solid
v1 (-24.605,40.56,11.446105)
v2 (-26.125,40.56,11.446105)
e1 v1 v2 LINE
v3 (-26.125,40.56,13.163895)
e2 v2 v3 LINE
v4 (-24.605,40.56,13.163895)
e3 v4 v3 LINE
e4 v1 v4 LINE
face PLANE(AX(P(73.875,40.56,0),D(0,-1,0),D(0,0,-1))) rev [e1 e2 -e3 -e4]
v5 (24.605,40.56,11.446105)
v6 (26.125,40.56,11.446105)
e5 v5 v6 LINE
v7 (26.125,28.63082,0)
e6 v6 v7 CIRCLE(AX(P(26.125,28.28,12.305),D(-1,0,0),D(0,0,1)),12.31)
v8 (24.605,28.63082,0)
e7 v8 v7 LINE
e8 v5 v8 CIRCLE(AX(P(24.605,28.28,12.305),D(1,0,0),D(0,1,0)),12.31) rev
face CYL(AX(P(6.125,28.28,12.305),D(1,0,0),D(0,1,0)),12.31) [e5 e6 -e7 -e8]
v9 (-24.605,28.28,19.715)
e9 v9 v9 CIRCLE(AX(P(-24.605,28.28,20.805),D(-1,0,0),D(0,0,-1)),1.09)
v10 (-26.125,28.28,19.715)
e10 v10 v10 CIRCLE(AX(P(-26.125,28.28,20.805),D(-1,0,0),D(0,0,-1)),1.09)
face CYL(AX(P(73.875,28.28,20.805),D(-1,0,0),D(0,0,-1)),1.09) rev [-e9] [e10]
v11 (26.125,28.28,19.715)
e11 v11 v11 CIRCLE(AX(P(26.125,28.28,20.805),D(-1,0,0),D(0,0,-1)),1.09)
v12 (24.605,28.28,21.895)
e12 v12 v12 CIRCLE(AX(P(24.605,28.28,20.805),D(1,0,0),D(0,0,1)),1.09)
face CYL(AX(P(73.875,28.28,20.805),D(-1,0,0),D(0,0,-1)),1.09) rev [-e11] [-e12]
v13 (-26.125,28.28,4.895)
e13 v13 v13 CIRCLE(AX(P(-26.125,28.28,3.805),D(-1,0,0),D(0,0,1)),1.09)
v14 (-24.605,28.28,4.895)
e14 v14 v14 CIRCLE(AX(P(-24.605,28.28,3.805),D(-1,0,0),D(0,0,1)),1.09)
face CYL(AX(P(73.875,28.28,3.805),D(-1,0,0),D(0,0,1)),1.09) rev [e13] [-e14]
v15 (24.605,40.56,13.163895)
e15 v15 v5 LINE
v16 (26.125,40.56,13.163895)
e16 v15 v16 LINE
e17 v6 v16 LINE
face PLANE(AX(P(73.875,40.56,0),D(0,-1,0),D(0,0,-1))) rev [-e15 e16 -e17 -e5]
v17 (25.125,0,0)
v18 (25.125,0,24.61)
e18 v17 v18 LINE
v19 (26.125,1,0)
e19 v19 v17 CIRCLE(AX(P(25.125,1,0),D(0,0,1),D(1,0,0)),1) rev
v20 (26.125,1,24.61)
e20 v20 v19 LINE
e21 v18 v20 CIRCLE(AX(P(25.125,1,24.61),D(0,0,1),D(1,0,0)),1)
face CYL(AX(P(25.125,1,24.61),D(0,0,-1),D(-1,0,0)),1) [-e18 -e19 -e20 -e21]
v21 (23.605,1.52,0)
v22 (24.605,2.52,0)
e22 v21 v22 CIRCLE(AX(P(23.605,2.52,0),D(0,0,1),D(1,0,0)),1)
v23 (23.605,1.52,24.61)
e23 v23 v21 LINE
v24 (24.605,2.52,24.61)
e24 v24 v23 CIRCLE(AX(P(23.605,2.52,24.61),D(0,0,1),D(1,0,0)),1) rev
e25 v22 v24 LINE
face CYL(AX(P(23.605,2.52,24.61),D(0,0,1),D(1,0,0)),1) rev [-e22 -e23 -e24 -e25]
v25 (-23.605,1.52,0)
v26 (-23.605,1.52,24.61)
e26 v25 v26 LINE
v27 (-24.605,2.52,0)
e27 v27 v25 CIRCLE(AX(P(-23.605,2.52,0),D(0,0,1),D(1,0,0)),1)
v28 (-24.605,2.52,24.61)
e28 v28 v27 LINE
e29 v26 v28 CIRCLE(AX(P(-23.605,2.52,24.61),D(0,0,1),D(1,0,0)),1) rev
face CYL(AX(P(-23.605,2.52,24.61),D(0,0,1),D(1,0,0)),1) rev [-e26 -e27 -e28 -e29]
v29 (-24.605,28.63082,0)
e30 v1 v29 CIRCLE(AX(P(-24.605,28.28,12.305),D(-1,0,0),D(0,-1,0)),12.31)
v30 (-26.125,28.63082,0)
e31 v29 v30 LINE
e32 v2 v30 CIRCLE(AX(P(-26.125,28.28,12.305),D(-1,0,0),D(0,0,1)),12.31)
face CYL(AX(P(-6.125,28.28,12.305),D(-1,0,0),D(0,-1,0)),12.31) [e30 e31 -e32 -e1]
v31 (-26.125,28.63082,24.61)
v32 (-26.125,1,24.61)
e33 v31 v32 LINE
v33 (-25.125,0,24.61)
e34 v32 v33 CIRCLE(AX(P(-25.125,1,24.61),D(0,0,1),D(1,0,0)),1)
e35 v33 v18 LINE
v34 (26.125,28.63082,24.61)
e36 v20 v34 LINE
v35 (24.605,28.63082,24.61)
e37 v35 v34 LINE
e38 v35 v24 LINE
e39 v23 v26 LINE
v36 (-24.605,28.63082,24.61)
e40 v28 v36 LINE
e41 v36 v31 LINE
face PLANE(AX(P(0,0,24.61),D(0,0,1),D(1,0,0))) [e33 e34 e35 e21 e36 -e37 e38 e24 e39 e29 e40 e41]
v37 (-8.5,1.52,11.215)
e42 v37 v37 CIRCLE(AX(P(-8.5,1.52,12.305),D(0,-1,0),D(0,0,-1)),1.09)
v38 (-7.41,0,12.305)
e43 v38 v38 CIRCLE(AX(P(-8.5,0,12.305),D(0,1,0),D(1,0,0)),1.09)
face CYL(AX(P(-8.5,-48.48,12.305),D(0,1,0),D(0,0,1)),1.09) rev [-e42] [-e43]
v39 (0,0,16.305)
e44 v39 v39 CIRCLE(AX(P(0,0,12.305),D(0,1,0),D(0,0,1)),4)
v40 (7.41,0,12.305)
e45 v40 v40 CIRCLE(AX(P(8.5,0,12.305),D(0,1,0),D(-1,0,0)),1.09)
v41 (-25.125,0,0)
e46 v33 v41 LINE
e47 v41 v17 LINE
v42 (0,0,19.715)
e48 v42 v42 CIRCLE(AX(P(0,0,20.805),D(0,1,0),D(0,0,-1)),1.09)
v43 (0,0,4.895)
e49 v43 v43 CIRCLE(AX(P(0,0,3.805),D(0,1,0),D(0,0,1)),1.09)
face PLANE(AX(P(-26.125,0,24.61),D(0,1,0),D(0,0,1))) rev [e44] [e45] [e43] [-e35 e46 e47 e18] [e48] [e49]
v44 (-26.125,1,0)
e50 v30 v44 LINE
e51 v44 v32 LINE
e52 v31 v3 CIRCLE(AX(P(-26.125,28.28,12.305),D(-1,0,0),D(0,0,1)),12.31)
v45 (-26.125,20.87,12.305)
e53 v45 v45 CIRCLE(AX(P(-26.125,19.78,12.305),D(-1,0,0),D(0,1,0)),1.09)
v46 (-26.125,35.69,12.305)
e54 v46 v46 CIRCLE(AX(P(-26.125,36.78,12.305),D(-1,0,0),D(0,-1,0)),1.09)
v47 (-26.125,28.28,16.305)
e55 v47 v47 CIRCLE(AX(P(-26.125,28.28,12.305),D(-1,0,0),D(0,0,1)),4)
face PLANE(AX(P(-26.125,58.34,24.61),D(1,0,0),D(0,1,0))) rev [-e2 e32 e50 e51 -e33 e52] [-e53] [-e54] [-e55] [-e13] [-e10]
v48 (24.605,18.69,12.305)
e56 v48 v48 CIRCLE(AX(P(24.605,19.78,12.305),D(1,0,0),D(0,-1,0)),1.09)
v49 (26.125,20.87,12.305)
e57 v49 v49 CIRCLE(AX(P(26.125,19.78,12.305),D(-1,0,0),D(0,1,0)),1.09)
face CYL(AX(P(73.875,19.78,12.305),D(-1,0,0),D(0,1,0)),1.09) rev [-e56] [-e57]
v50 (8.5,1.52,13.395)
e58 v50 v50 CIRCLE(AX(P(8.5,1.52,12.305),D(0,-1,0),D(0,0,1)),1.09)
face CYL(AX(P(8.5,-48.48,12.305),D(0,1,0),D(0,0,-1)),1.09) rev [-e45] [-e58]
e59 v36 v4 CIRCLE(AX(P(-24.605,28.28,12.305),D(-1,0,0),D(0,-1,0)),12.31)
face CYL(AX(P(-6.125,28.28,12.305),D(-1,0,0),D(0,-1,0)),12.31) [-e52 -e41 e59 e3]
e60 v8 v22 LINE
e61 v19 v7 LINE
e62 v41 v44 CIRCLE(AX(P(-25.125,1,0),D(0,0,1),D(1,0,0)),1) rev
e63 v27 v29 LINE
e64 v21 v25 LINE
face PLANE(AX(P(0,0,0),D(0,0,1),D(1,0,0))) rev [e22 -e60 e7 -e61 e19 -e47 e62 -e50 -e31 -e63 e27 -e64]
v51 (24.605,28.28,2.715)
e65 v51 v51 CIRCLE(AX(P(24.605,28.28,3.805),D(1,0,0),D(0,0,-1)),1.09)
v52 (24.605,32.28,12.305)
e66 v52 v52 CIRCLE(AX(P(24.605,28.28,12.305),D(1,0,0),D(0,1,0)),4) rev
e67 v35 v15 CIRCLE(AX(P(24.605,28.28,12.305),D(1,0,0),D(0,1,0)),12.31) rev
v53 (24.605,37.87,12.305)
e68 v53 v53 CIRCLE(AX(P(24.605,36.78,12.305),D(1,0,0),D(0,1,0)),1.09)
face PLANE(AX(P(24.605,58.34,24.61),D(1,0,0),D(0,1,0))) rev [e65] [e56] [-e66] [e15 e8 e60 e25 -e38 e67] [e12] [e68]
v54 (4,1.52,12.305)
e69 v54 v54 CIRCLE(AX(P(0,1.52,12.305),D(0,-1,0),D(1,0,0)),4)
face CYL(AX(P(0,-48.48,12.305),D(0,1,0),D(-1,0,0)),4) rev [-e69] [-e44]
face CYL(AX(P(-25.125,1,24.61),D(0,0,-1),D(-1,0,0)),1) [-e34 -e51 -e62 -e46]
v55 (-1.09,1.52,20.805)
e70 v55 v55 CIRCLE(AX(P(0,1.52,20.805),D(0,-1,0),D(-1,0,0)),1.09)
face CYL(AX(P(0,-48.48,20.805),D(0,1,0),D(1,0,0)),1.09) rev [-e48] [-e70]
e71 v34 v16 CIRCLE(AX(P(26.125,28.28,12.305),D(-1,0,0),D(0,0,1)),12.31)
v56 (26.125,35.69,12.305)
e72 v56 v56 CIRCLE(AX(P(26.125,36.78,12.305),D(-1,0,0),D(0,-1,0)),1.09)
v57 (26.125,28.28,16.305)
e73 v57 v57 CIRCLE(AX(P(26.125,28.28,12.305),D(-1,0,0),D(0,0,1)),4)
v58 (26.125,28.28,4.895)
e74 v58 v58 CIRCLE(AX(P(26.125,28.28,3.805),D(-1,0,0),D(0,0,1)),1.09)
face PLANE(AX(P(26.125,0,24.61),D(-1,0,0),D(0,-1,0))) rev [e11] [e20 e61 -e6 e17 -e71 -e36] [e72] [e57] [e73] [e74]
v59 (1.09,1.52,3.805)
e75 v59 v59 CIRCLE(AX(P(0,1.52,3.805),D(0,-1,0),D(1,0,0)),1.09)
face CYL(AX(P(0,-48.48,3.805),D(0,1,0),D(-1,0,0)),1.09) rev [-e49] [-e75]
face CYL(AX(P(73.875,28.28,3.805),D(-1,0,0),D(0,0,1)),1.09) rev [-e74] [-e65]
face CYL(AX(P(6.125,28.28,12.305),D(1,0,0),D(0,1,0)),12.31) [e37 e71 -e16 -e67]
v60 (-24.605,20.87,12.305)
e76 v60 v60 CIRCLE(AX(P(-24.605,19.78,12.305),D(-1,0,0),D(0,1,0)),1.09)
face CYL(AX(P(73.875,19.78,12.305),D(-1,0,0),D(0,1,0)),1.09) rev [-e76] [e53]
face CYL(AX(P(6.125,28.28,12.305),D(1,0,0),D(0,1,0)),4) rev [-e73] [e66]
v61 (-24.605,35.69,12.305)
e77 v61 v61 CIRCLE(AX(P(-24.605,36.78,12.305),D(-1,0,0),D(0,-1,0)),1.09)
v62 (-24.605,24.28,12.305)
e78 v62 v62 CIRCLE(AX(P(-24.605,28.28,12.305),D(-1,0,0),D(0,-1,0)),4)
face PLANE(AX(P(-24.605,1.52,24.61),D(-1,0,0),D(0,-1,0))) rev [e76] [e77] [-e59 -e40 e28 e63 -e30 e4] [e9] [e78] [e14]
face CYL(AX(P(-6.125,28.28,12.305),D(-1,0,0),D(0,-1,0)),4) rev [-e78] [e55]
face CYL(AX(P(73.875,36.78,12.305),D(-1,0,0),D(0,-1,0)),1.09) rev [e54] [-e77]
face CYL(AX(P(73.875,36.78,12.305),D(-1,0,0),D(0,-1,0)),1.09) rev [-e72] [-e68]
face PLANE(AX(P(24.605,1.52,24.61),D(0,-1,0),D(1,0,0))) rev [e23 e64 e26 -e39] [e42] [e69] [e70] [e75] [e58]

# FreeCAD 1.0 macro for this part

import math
import FreeCAD as App
import Part
import Sketcher
from FreeCAD import Vector
Q = App.Units.Quantity


def edges_at(feature, points):
    """Names of the edges that pass closest to the given points."""
    edges = feature.Shape.Edges
    near = lambda p: min(range(len(edges)), key=lambda i: edges[i].distToShape(Part.Vertex(*p))[0])
    return sorted({f"Edge{near(p) + 1}" for p in points})

doc = App.newDocument("Part")
body = doc.addObject("PartDesign::Body", "Body")

# Sketch on XY plane
sketch1 = body.newObject("Sketcher::SketchObject", "Sketch")
sketch1.AttachmentSupport = (doc.getObject("XY_Plane"), [""])
sketch1.MapMode = "FlatFace"
sketch1.addGeometry([
    Part.LineSegment(Vector(-26.125, 58.34, 0), Vector(-26.125, 0, 0)),  # 0
    Part.LineSegment(Vector(-26.125, 0, 0), Vector(26.125, 0, 0)),  # 1
    Part.LineSegment(Vector(26.125, 0, 0), Vector(26.125, 58.34, 0)),  # 2
    Part.LineSegment(Vector(26.125, 58.34, 0), Vector(24.605, 58.34, 0)),  # 3
    Part.LineSegment(Vector(24.605, 58.34, 0), Vector(24.605, 1.52, 0)),  # 4
    Part.LineSegment(Vector(24.605, 1.52, 0), Vector(-24.605, 1.52, 0)),  # 5
    Part.LineSegment(Vector(-24.605, 1.52, 0), Vector(-24.605, 58.34, 0)),  # 6
    Part.LineSegment(Vector(-24.605, 58.34, 0), Vector(-26.125, 58.34, 0)),  # 7
], False)
sketch1.addConstraint([
    Sketcher.Constraint("Coincident", 0, 2, 1, 1),
    Sketcher.Constraint("Coincident", 1, 2, 2, 1),
    Sketcher.Constraint("Coincident", 2, 2, 3, 1),
    Sketcher.Constraint("Coincident", 3, 2, 4, 1),
    Sketcher.Constraint("Coincident", 4, 2, 5, 1),
    Sketcher.Constraint("Coincident", 5, 2, 6, 1),
    Sketcher.Constraint("Coincident", 6, 2, 7, 1),
    Sketcher.Constraint("Coincident", 7, 2, 0, 1),
    Sketcher.Constraint("Vertical", 0),
    Sketcher.Constraint("Horizontal", 1),
    Sketcher.Constraint("Vertical", 2),
    Sketcher.Constraint("Horizontal", 3),
    Sketcher.Constraint("Vertical", 4),
    Sketcher.Constraint("Horizontal", 5),
    Sketcher.Constraint("Vertical", 6),
    Sketcher.Constraint("Horizontal", 7),
    Sketcher.Constraint("Symmetric", 0, 2, 1, 2, -1, 1),
    Sketcher.Constraint("Symmetric", 3, 2, 6, 2, -2),
    Sketcher.Constraint("DistanceX", 1, 1, 1, 2, Q("52.25 mm")),
    Sketcher.Constraint("DistanceX", 3, 2, 3, 1, Q("1.52 mm")),
    Sketcher.Constraint("DistanceY", 0, 2, 0, 1, Q("58.34 mm")),
    Sketcher.Constraint("DistanceY", 4, 2, 4, 1, Q("56.82 mm")),
])
pad1 = body.newObject("PartDesign::Pad", "Pad")
pad1.Profile = sketch1
pad1.Length = 24.61

# Sketch on YZ plane
sketch2 = body.newObject("Sketcher::SketchObject", "Sketch001")
sketch2.AttachmentSupport = (doc.getObject("YZ_Plane"), [""])
sketch2.MapMode = "FlatFace"
sketch2.AttachmentOffset = App.Placement(Vector(0, 0, -26.125), App.Rotation())
sketch2.addGeometry([
    Part.Circle(Vector(28.28, 12.305, 0), Vector(0, 0, 1), 4),  # 0
    Part.LineSegment(Vector(40.56, -0.002957, 0), Vector(28.28, -0.005, 0)),  # 1
    Part.ArcOfCircle(Part.Circle(Vector(28.28, 12.305, 0), Vector(0, 0, 1), 12.31), math.radians(-90), math.radians(-4.000898)),  # 2
    Part.LineSegment(Vector(40.56, 11.446105, 0), Vector(40.56, -0.002957, 0)),  # 3
    Part.LineSegment(Vector(28.28, 24.615, 0), Vector(40.56, 24.612957, 0)),  # 4
    Part.LineSegment(Vector(40.56, 24.612957, 0), Vector(40.56, 13.163895, 0)),  # 5
    Part.ArcOfCircle(Part.Circle(Vector(28.28, 12.305, 0), Vector(0, 0, 1), 12.31), math.radians(4.000898), math.radians(90)),  # 6
], False)
sketch2.addConstraint([
    Sketcher.Constraint("Coincident", 1, 2, 2, 1),
    Sketcher.Constraint("Coincident", 2, 2, 3, 1),
    Sketcher.Constraint("Coincident", 3, 2, 1, 1),
    Sketcher.Constraint("Coincident", 4, 2, 5, 1),
    Sketcher.Constraint("Coincident", 5, 2, 6, 1),
    Sketcher.Constraint("Coincident", 6, 2, 4, 1),
    Sketcher.Constraint("Vertical", 3),
    Sketcher.Constraint("Vertical", 5),
    Sketcher.Constraint("Coincident", 2, 3, 0, 3),
    Sketcher.Constraint("Coincident", 6, 3, 0, 3),
    Sketcher.Constraint("Equal", 2, 6),
    Sketcher.Constraint("Vertical", 6, 3, 1, 2),
    Sketcher.Constraint("Vertical", 3, 2, 4, 2),
    Sketcher.Constraint("Vertical", 1, 2, 6, 2),
    Sketcher.Constraint("Equal", 3, 5),
    Sketcher.Constraint("Diameter", 0, Q("8 mm")),
    Sketcher.Constraint("Radius", 2, Q("12.31 mm")),
    Sketcher.Constraint("Distance", 1, Q("12.28 mm")),
    Sketcher.Constraint("DistanceX", -1, 1, 0, 3, Q("28.28 mm")),
    Sketcher.Constraint("DistanceY", -1, 1, 0, 3, Q("12.305 mm")),
    Sketcher.Constraint("DistanceY", 3, 2, 3, 1, Q("11.449063 mm")),
])
pocket1 = body.newObject("PartDesign::Pocket", "Pocket")
pocket1.Profile = sketch2
pocket1.Length = 20
pocket1.Reversed = True
doc.recompute()

mirrored = body.newObject("PartDesign::Mirrored", "Mirrored")
mirrored.Originals = [pocket1]
mirrored.MirrorPlane = (doc.getObject("YZ_Plane"), [""])
body.Tip = mirrored

# Sketch on YZ plane
sketch3 = body.newObject("Sketcher::SketchObject", "Sketch002")
sketch3.AttachmentSupport = (doc.getObject("YZ_Plane"), [""])
sketch3.MapMode = "FlatFace"
sketch3.AttachmentOffset = App.Placement(Vector(0, 0, -26.125), App.Rotation())
sketch3.addGeometry(Part.Circle(Vector(36.78, 12.305, 0), Vector(0, 0, 1), 1.09), False)
sketch3.addConstraint([
    Sketcher.Constraint("Diameter", 0, Q("2.18 mm")),
    Sketcher.Constraint("DistanceX", -1, 1, 0, 3, Q("36.78 mm")),
    Sketcher.Constraint("DistanceY", -1, 1, 0, 3, Q("12.305 mm")),
])
pocket2 = body.newObject("PartDesign::Pocket", "Pocket001")
pocket2.Profile = sketch3
pocket2.Length = 100
pocket2.Reversed = True
doc.recompute()

datumline = body.newObject("PartDesign::Line", "DatumLine")
datumline.Placement = App.Placement(Vector(0, 28.28, 12.305), App.Rotation(Vector(0, 0, 1), Vector(1, 0, 0)))
polarpattern = body.newObject("PartDesign::PolarPattern", "PolarPattern")
polarpattern.Originals = [pocket2]
polarpattern.Axis = (datumline, [""])
polarpattern.Angle = 360
polarpattern.Occurrences = 4
body.Tip = polarpattern

# Sketch on XZ plane
sketch4 = body.newObject("Sketcher::SketchObject", "Sketch003")
sketch4.AttachmentSupport = (doc.getObject("XZ_Plane"), [""])
sketch4.MapMode = "FlatFace"
sketch4.AttachmentOffset = App.Placement(Vector(0, 0, -1.52), App.Rotation())
sketch4.addGeometry(Part.Circle(Vector(0, 12.305, 0), Vector(0, 0, 1), 4), False)
sketch4.addConstraint([
    Sketcher.Constraint("PointOnObject", 0, 3, -2),
    Sketcher.Constraint("Diameter", 0, Q("8 mm")),
    Sketcher.Constraint("DistanceY", -1, 1, 0, 3, Q("12.305 mm")),
])
pocket3 = body.newObject("PartDesign::Pocket", "Pocket002")
pocket3.Profile = sketch4
pocket3.Length = 100
pocket3.Midplane = True

# Sketch on XZ plane
sketch5 = body.newObject("Sketcher::SketchObject", "Sketch004")
sketch5.AttachmentSupport = (doc.getObject("XZ_Plane"), [""])
sketch5.MapMode = "FlatFace"
sketch5.AttachmentOffset = App.Placement(Vector(0, 0, -1.52), App.Rotation())
sketch5.addGeometry(Part.Circle(Vector(0, 3.805, 0), Vector(0, 0, 1), 1.09), False)
sketch5.addConstraint([
    Sketcher.Constraint("PointOnObject", 0, 3, -2),
    Sketcher.Constraint("Diameter", 0, Q("2.18 mm")),
    Sketcher.Constraint("DistanceY", -1, 1, 0, 3, Q("3.805 mm")),
])
pocket4 = body.newObject("PartDesign::Pocket", "Pocket003")
pocket4.Profile = sketch5
pocket4.Length = 100
pocket4.Midplane = True
doc.recompute()

datumline2 = body.newObject("PartDesign::Line", "DatumLine001")
datumline2.Placement = App.Placement(Vector(0, 0, 12.305), App.Rotation(Vector(0, 0, 1), Vector(0, 1, 0)))
polarpattern2 = body.newObject("PartDesign::PolarPattern", "PolarPattern001")
polarpattern2.Originals = [pocket4]
polarpattern2.Axis = (datumline2, [""])
polarpattern2.Angle = 360
polarpattern2.Occurrences = 4
body.Tip = polarpattern2
doc.recompute()

fillet = body.newObject("PartDesign::Fillet", "Fillet")
fillet.Base = (polarpattern2, edges_at(polarpattern2, [
    (-24.605, 1.52, 12.305),
    (24.605, 1.52, 12.305),
    (26.125, 0, 12.305),
    (-26.125, 0, 12.305),
]))
fillet.Radius = 1

# Sketch on YZ plane
sketch6 = body.newObject("Sketcher::SketchObject", "Sketch005")
sketch6.AttachmentSupport = (doc.getObject("YZ_Plane"), [""])
sketch6.MapMode = "FlatFace"
sketch6.AttachmentOffset = App.Placement(Vector(0, 0, -26.125), App.Rotation())
sketch6.addGeometry([
    Part.LineSegment(Vector(58.34, 0, 0), Vector(40.56, 0, 0)),
    Part.LineSegment(Vector(40.56, 0, 0), Vector(40.56, 24.61, 0)),
    Part.LineSegment(Vector(40.56, 24.61, 0), Vector(58.34, 24.61, 0)),
    Part.LineSegment(Vector(58.34, 24.61, 0), Vector(58.34, 0, 0)),
], False)
sketch6.addConstraint([
    Sketcher.Constraint("Coincident", 0, 2, 1, 1),
    Sketcher.Constraint("Coincident", 1, 2, 2, 1),
    Sketcher.Constraint("Coincident", 2, 2, 3, 1),
    Sketcher.Constraint("Coincident", 3, 2, 0, 1),
    Sketcher.Constraint("Horizontal", 0),
    Sketcher.Constraint("Vertical", 1),
    Sketcher.Constraint("Horizontal", 2),
    Sketcher.Constraint("Vertical", 3),
    Sketcher.Constraint("PointOnObject", 0, 2, -1),
    Sketcher.Constraint("DistanceX", 0, 2, 0, 1, Q("17.78 mm")),
    Sketcher.Constraint("DistanceY", 1, 1, 1, 2, Q("24.61 mm")),
    Sketcher.Constraint("DistanceX", -1, 1, 0, 2, Q("40.56 mm")),
])
pocket5 = body.newObject("PartDesign::Pocket", "Pocket004")
pocket5.Profile = sketch6
pocket5.Length = 100
pocket5.Reversed = True

doc.recompute()
